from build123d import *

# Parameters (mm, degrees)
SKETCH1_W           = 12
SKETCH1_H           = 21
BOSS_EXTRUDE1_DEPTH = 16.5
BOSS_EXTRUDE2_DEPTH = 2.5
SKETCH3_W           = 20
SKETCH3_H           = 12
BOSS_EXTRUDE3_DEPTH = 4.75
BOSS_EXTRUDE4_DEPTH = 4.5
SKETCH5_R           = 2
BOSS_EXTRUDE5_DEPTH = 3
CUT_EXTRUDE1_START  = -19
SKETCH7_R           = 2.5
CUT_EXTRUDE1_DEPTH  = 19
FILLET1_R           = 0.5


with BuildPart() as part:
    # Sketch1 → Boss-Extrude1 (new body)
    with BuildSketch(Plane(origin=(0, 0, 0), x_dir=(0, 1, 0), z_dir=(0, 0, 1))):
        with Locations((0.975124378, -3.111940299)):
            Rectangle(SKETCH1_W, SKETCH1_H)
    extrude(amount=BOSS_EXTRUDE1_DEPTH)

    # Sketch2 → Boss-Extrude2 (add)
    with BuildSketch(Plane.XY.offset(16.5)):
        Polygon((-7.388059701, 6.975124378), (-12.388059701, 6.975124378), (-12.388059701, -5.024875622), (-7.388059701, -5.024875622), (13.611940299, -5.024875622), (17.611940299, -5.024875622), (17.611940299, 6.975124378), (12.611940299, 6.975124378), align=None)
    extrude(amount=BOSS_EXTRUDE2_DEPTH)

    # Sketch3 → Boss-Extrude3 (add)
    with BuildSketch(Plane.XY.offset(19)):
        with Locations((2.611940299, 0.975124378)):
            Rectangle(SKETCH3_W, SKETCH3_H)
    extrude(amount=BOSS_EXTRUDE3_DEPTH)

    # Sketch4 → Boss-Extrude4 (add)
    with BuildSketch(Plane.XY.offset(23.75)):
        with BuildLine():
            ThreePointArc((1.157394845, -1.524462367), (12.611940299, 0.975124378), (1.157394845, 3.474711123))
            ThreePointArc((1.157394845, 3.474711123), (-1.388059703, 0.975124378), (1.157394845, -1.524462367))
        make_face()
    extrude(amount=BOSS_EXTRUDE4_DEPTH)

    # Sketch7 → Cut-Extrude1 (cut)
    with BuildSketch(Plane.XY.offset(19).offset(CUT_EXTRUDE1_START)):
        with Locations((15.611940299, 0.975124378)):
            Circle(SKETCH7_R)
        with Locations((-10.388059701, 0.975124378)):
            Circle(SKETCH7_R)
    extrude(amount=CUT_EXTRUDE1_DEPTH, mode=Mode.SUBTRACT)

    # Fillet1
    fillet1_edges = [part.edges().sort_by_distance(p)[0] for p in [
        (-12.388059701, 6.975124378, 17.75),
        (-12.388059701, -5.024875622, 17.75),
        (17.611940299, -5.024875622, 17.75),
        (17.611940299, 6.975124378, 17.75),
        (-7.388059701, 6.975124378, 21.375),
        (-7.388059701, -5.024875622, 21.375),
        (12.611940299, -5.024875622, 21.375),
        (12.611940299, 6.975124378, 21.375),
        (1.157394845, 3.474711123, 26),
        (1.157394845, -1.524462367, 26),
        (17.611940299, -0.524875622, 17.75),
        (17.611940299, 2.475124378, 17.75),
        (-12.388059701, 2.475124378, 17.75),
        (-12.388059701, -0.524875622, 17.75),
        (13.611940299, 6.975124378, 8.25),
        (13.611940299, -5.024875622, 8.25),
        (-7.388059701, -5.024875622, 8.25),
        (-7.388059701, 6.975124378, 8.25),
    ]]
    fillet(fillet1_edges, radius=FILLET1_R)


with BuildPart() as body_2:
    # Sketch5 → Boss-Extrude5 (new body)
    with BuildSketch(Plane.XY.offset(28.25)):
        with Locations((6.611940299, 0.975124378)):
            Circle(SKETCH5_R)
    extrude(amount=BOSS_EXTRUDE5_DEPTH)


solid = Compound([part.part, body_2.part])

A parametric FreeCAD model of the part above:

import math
import FreeCAD as App
import Part
import Sketcher
from FreeCAD import Vector
Q = App.Units.Quantity


def edges_at(feature, points):
    """Names of the edges that pass closest to the given points."""
    edges = feature.Shape.Edges
    near = lambda p: min(range(len(edges)), key=lambda i: edges[i].distToShape(Part.Vertex(*p))[0])
    return sorted({f"Edge{near(p) + 1}" for p in points})

doc = App.newDocument("Part")
body = doc.addObject("PartDesign::Body", "Body")

# Sketch on XY plane
sketch1 = doc.addObject("Sketcher::SketchObject", "Sketch")
body.addObject(sketch1)
sketch1.AttachmentSupport = (doc.XY_Plane, [""])
sketch1.MapMode = "FlatFace"
sketch1.addGeometry([
    Part.LineSegment(Vector(-7.38806, -5.024876, 0), Vector(13.61194, -5.024876, 0)),
    Part.LineSegment(Vector(13.61194, -5.024876, 0), Vector(13.61194, 6.975124, 0)),
    Part.LineSegment(Vector(13.61194, 6.975124, 0), Vector(-7.38806, 6.975124, 0)),
    Part.LineSegment(Vector(-7.38806, 6.975124, 0), Vector(-7.38806, -5.024876, 0)),
], False)
sketch1.addConstraint([
    Sketcher.Constraint("Coincident", 0, 2, 1, 1),
    Sketcher.Constraint("Coincident", 1, 2, 2, 1),
    Sketcher.Constraint("Coincident", 2, 2, 3, 1),
    Sketcher.Constraint("Coincident", 3, 2, 0, 1),
    Sketcher.Constraint("Horizontal", 0),
    Sketcher.Constraint("Vertical", 1),
    Sketcher.Constraint("Horizontal", 2),
    Sketcher.Constraint("Vertical", 3),
    Sketcher.Constraint("DistanceX", 0, 1, 0, 2, Q("21 mm")),
    Sketcher.Constraint("DistanceY", 1, 1, 1, 2, Q("12 mm")),
    Sketcher.Constraint("DistanceX", -1, 1, 0, 2, Q("13.61194 mm")),
    Sketcher.Constraint("DistanceY", 0, 2, -1, 1, Q("5.024876 mm")),
])
pad1 = doc.addObject("PartDesign::Pad", "Pad")
body.addObject(pad1)
pad1.Profile = sketch1
pad1.Length = 16.5

# Sketch on XY plane
sketch2 = doc.addObject("Sketcher::SketchObject", "Sketch001")
body.addObject(sketch2)
sketch2.AttachmentSupport = (doc.XY_Plane, [""])
sketch2.MapMode = "FlatFace"
sketch2.AttachmentOffset = App.Placement(Vector(0, 0, 16.5), App.Rotation())
sketch2.addGeometry([
    Part.LineSegment(Vector(-12.38806, 6.975124, 0), Vector(-12.38806, -5.024876, 0)),
    Part.LineSegment(Vector(-12.38806, -5.024876, 0), Vector(17.61194, -5.024876, 0)),
    Part.LineSegment(Vector(17.61194, -5.024876, 0), Vector(17.61194, 6.975124, 0)),
    Part.LineSegment(Vector(17.61194, 6.975124, 0), Vector(-12.38806, 6.975124, 0)),
], False)
sketch2.addConstraint([
    Sketcher.Constraint("Coincident", 0, 2, 1, 1),
    Sketcher.Constraint("Coincident", 1, 2, 2, 1),
    Sketcher.Constraint("Coincident", 2, 2, 3, 1),
    Sketcher.Constraint("Coincident", 3, 2, 0, 1),
    Sketcher.Constraint("Vertical", 0),
    Sketcher.Constraint("Horizontal", 1),
    Sketcher.Constraint("Vertical", 2),
    Sketcher.Constraint("Horizontal", 3),
    Sketcher.Constraint("DistanceX", 1, 1, 1, 2, Q("30 mm")),
    Sketcher.Constraint("DistanceY", 0, 2, 0, 1, Q("12 mm")),
    Sketcher.Constraint("DistanceX", 0, 2, -1, 1, Q("12.38806 mm")),
    Sketcher.Constraint("DistanceY", 0, 2, -1, 1, Q("5.024876 mm")),
])
pad2 = doc.addObject("PartDesign::Pad", "Pad001")
body.addObject(pad2)
pad2.Profile = sketch2
pad2.Length = 2.5

# Sketch on XY plane
sketch3 = doc.addObject("Sketcher::SketchObject", "Sketch002")
body.addObject(sketch3)
sketch3.AttachmentSupport = (doc.XY_Plane, [""])
sketch3.MapMode = "FlatFace"
sketch3.AttachmentOffset = App.Placement(Vector(0, 0, 19), App.Rotation())
sketch3.addGeometry([
    Part.LineSegment(Vector(-7.38806, 6.975124, 0), Vector(-7.38806, -5.024876, 0)),
    Part.LineSegment(Vector(-7.38806, -5.024876, 0), Vector(12.61194, -5.024876, 0)),
    Part.LineSegment(Vector(12.61194, -5.024876, 0), Vector(12.61194, 6.975124, 0)),
    Part.LineSegment(Vector(12.61194, 6.975124, 0), Vector(-7.38806, 6.975124, 0)),
], False)
sketch3.addConstraint([
    Sketcher.Constraint("Coincident", 0, 2, 1, 1),
    Sketcher.Constraint("Coincident", 1, 2, 2, 1),
    Sketcher.Constraint("Coincident", 2, 2, 3, 1),
    Sketcher.Constraint("Coincident", 3, 2, 0, 1),
    Sketcher.Constraint("Vertical", 0),
    Sketcher.Constraint("Horizontal", 1),
    Sketcher.Constraint("Vertical", 2),
    Sketcher.Constraint("Horizontal", 3),
    Sketcher.Constraint("DistanceX", 1, 1, 1, 2, Q("20 mm")),
    Sketcher.Constraint("DistanceY", 0, 2, 0, 1, Q("12 mm")),
    Sketcher.Constraint("DistanceX", 0, 2, -1, 1, Q("7.38806 mm")),
    Sketcher.Constraint("DistanceY", 0, 2, -1, 1, Q("5.024876 mm")),
])
pad3 = doc.addObject("PartDesign::Pad", "Pad002")
body.addObject(pad3)
pad3.Profile = sketch3
pad3.Length = 4.75

# Sketch on XY plane
sketch4 = doc.addObject("Sketcher::SketchObject", "Sketch003")
body.addObject(sketch4)
sketch4.AttachmentSupport = (doc.XY_Plane, [""])
sketch4.MapMode = "FlatFace"
sketch4.AttachmentOffset = App.Placement(Vector(0, 0, 23.75), App.Rotation())
sketch4.addGeometry([
    Part.ArcOfCircle(Part.Circle(Vector(6.61194, 0.975124, 0), Vector(0, 0, 1), 6), math.radians(-155.380023), math.radians(155.380023)),
    Part.ArcOfCircle(Part.Circle(Vector(1.11194, 0.975124, 0), Vector(0, 0, 1), 2.5), math.radians(88.958201), math.radians(271.041799)),
], False)
sketch4.addConstraint([
    Sketcher.Constraint("Coincident", 0, 1, 1, 2),
    Sketcher.Constraint("Coincident", 1, 1, 0, 2),
    Sketcher.Constraint("Horizontal", 0, 3, 1, 3),
    Sketcher.Constraint("Radius", 0, Q("6 mm")),
    Sketcher.Constraint("Radius", 1, Q("2.5 mm")),
    Sketcher.Constraint("DistanceX", 1, 3, 0, 3, Q("5.5 mm")),
    Sketcher.Constraint("DistanceX", -1, 1, 0, 3, Q("6.61194 mm")),
    Sketcher.Constraint("DistanceY", -1, 1, 1, 1, Q("3.474711 mm")),
])
pad4 = doc.addObject("PartDesign::Pad", "Pad003")
body.addObject(pad4)
pad4.Profile = sketch4
pad4.Length = 4.5

# Sketch on XY plane
sketch5 = doc.addObject("Sketcher::SketchObject", "Sketch004")
body.addObject(sketch5)
sketch5.AttachmentSupport = (doc.XY_Plane, [""])
sketch5.MapMode = "FlatFace"
sketch5.addGeometry([
    Part.Circle(Vector(15.61194, 0.975124, 0), Vector(0, 0, 1), 2.5),
    Part.Circle(Vector(-10.38806, 0.975124, 0), Vector(0, 0, 1), 2.5),
], False)
sketch5.addConstraint([
    Sketcher.Constraint("Equal", 0, 1),
    Sketcher.Constraint("Horizontal", 0, 3, 1, 3),
    Sketcher.Constraint("Diameter", 0, Q("5 mm")),
    Sketcher.Constraint("DistanceX", 1, 3, 0, 3, Q("26 mm")),
    Sketcher.Constraint("DistanceX", -1, 1, 0, 3, Q("15.61194 mm")),
    Sketcher.Constraint("DistanceY", -1, 1, 0, 3, Q("0.975124 mm")),
])
pocket1 = doc.addObject("PartDesign::Pocket", "Pocket")
body.addObject(pocket1)
pocket1.Profile = sketch5
pocket1.Length = 19
pocket1.Reversed = True
doc.recompute()

fillet = doc.addObject("PartDesign::Fillet", "Fillet")
body.addObject(fillet)
fillet.Base = (pocket1, edges_at(pocket1, [
    (-12.388, 6.975, 17.75),
    (-12.388, -5.025, 17.75),
    (17.612, -5.025, 17.75),
    (17.612, 6.975, 17.75),
    (-7.388, 6.975, 21.375),
    (-7.388, -5.025, 21.375),
    (12.612, -5.025, 21.375),
    (12.612, 6.975, 21.375),
    (1.157, 3.475, 26),
    (1.157, -1.524, 26),
    (17.612, -0.525, 17.75),
    (17.612, 2.475, 17.75),
    (-12.388, 2.475, 17.75),
    (-12.388, -0.525, 17.75),
    (13.612, 6.975, 8.25),
    (13.612, -5.025, 8.25),
    (-7.388, -5.025, 8.25),
    (-7.388, 6.975, 8.25),
]))
fillet.Radius = 0.5
body2 = doc.addObject("PartDesign::Body", "Body001")

# Sketch on XY plane
sketch6 = doc.addObject("Sketcher::SketchObject", "Sketch005")
body2.addObject(sketch6)
sketch6.AttachmentSupport = (doc.getObject("XY_Plane001"), [""])
sketch6.MapMode = "FlatFace"
sketch6.AttachmentOffset = App.Placement(Vector(0, 0, 28.25), App.Rotation())
sketch6.addGeometry(Part.Circle(Vector(6.61194, 0.975124, 0), Vector(0, 0, 1), 2), False)
sketch6.addConstraint([
    Sketcher.Constraint("Diameter", 0, Q("4 mm")),
    Sketcher.Constraint("DistanceX", -1, 1, 0, 3, Q("6.61194 mm")),
    Sketcher.Constraint("DistanceY", -1, 1, 0, 3, Q("0.975124 mm")),
])
pad5 = doc.addObject("PartDesign::Pad", "Pad004")
body2.addObject(pad5)
pad5.Profile = sketch6
pad5.Length = 3

doc.recompute()
